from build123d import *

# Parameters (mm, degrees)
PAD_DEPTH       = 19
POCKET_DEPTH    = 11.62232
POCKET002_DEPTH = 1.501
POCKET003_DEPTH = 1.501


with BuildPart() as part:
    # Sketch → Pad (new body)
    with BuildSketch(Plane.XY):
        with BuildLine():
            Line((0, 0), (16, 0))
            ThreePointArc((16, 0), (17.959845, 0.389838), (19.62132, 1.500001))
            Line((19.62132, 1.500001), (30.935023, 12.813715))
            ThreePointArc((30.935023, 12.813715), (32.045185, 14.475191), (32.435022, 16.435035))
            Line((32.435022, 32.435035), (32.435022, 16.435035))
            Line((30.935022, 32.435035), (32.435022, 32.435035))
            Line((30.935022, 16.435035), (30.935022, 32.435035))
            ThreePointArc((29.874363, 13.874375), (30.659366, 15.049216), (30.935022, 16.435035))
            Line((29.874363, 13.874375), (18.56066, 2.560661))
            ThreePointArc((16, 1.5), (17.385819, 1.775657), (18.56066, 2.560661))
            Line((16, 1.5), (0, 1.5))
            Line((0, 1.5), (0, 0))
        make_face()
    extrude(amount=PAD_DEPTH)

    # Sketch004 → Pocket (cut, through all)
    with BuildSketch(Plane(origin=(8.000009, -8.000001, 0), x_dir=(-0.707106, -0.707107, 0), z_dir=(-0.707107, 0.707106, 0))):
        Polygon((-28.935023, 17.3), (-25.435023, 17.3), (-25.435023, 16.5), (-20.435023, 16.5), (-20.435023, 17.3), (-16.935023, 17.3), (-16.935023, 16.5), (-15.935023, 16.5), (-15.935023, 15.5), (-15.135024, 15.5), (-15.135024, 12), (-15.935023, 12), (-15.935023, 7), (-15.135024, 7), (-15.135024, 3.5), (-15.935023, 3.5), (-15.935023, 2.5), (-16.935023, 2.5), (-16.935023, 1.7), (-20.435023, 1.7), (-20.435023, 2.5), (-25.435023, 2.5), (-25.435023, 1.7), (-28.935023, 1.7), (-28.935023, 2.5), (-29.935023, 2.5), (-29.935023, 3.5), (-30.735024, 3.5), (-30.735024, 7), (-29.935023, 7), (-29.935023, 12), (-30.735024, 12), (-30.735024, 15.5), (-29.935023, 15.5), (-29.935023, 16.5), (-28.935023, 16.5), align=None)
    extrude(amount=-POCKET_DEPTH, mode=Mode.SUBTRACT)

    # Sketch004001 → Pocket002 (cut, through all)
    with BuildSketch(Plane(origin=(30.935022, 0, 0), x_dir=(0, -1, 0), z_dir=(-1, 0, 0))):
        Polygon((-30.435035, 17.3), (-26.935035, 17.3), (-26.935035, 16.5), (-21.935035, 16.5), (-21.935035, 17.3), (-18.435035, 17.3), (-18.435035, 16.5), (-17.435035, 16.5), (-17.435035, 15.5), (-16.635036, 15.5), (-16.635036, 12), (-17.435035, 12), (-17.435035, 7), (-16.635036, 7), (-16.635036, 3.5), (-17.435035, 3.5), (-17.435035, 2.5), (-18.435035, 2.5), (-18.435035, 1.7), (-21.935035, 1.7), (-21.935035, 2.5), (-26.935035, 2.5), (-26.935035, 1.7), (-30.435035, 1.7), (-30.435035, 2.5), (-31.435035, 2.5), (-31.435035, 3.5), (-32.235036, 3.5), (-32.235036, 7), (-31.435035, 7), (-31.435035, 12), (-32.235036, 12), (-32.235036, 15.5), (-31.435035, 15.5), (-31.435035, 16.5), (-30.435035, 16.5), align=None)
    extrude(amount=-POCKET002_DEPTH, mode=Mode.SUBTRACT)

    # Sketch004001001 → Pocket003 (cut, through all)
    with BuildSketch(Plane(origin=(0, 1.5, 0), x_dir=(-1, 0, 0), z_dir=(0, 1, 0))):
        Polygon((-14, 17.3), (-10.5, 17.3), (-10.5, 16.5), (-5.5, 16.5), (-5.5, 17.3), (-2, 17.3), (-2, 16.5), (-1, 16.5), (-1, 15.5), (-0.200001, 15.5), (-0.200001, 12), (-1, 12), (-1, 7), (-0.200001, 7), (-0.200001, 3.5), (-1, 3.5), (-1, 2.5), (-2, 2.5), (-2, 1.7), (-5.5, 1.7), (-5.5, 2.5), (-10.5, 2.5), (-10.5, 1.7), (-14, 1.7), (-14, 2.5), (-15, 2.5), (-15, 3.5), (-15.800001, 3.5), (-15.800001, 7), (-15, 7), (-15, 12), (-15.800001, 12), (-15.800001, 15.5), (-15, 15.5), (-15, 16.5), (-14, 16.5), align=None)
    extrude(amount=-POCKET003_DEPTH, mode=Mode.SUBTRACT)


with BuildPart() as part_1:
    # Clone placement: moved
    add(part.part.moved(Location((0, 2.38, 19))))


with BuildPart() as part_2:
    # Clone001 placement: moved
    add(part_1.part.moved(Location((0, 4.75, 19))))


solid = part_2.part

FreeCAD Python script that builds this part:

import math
import FreeCAD as App
import Part
import Sketcher

V = App.Vector


def add_polygon(sketch, points):
    """Adds a closed chain of lines whose ends are joined by coincident constraints."""
    first, n = sketch.GeometryCount, len(points)
    for a, b in zip(points, points[1:] + points[:1]):
        sketch.addGeometry(Part.LineSegment(App.Vector(*a, 0), App.Vector(*b, 0)), False)
    for i in range(n):
        sketch.addConstraint(Sketcher.Constraint("Coincident", first + i, 2, first + (i + 1) % n, 1))

doc = App.newDocument("Part")
body = doc.addObject("PartDesign::Body", "Body")

sketch1 = doc.addObject("Sketcher::SketchObject", "Sketch")
body.addObject(sketch1)
sketch1.AttachmentSupport = (doc.XY_Plane, [""])
sketch1.MapMode = "FlatFace"
sketch1.addGeometry([
    Part.LineSegment(V(0, 0, 0), V(16, 0, 0)),
    Part.ArcOfCircle(Part.Circle(V(16, 5.1, 0), V(0, 0, 1), 5.1), math.radians(-90), math.radians(-45)),
    Part.LineSegment(V(19.6, 1.5, 0), V(30.9, 12.8, 0)),
    Part.ArcOfCircle(Part.Circle(V(27.3, 16.4, 0), V(0, 0, 1), 5.1), math.radians(-45), math.radians(0)),
    Part.LineSegment(V(32.4, 16.4, 0), V(32.4, 32.4, 0)),
    Part.LineSegment(V(32.4, 32.4, 0), V(30.9, 32.4, 0)),
    Part.LineSegment(V(30.9, 32.4, 0), V(30.9, 16.4, 0)),
    Part.ArcOfCircle(Part.Circle(V(27.3, 16.4, 0), V(0, 0, 1), 3.6), math.radians(-45), math.radians(0)),
    Part.LineSegment(V(29.9, 13.9, 0), V(18.6, 2.6, 0)),
    Part.ArcOfCircle(Part.Circle(V(16, 5.1, 0), V(0, 0, 1), 3.6), math.radians(-90), math.radians(-45)),
    Part.LineSegment(V(16, 1.5, 0), V(0, 1.5, 0)),
    Part.LineSegment(V(0, 1.5, 0), V(0, 0, 0)),
], False)
sketch1.addConstraint([
    Sketcher.Constraint("Tangent", 0, 2, 1, 1),
    Sketcher.Constraint("Tangent", 1, 2, 2, 1),
    Sketcher.Constraint("Tangent", 2, 2, 3, 1),
    Sketcher.Constraint("Tangent", 3, 2, 4, 1),
    Sketcher.Constraint("Coincident", 4, 2, 5, 1),
    Sketcher.Constraint("Coincident", 5, 2, 6, 1),
    Sketcher.Constraint("Tangent", 6, 2, 7, 2),
    Sketcher.Constraint("Tangent", 7, 1, 8, 1),
    Sketcher.Constraint("Tangent", 8, 2, 9, 2),
    Sketcher.Constraint("Tangent", 9, 1, 10, 1),
    Sketcher.Constraint("Coincident", 10, 2, 11, 1),
    Sketcher.Constraint("Coincident", 11, 2, 0, 1),
    Sketcher.Constraint("Horizontal", 0),
    Sketcher.Constraint("Vertical", 4),
    Sketcher.Constraint("Horizontal", 5),
    Sketcher.Constraint("Vertical", 6),
    Sketcher.Constraint("Horizontal", 10),
    Sketcher.Constraint("Vertical", 11),
    Sketcher.Constraint("Coincident", 11, 2, -1, 1),
    Sketcher.Constraint("Coincident", 7, 3, 3, 3),
    Sketcher.Constraint("Coincident", 9, 3, 1, 3),
    Sketcher.Constraint("Equal", 7, 9),
    Sketcher.Constraint("Parallel", 2, 8),
    Sketcher.Constraint("Horizontal", 1, 2, 9, 1),
    Sketcher.Constraint("Vertical", 2, 2, 5, 2),
    Sketcher.Constraint("Equal", 10, 4),
    Sketcher.Constraint("DistanceX", 0, 1, 0, 2, 16.0),
    Sketcher.Constraint("Distance", 2, 16.0),
    Sketcher.Constraint("DistanceX", 5, 2, 5, 1, 1.5),
])
pad1 = doc.addObject("PartDesign::Pad", "Pad")
body.addObject(pad1)
pad1.Profile = sketch1
pad1.Length = 19

sketch2 = doc.addObject("Sketcher::SketchObject", "Sketch001")
body.addObject(sketch2)
sketch2.Placement = App.Placement(V(8.000009, -8.000001, 0), App.Rotation(V(-0.707106281, -0.707107281, 0), V(0, 0, 0.999999999), V(-0.707107281, 0.707106281, 0), "ZXY"))
add_polygon(sketch2, [(-25.4, 17.3), (-28.9, 17.3), (-28.9, 16.5), (-29.9, 16.5), (-29.9, 15.5), (-30.7, 15.5), (-30.7, 12), (-29.9, 12), (-29.9, 7), (-30.7, 7), (-30.7, 3.5), (-29.9, 3.5), (-29.9, 2.5), (-28.9, 2.5), (-28.9, 1.7), (-25.4, 1.7), (-25.4, 2.5), (-20.4, 2.5), (-20.4, 1.7), (-16.9, 1.7), (-16.9, 2.5), (-15.9, 2.5), (-15.9, 3.5), (-15.1, 3.5), (-15.1, 7), (-15.9, 7), (-15.9, 12), (-15.1, 12), (-15.1, 15.5), (-15.9, 15.5), (-15.9, 16.5), (-16.9, 16.5), (-16.9, 17.3), (-20.4, 17.3), (-20.4, 16.5), (-25.4, 16.5)])
sketch2.addConstraint([
    Sketcher.Constraint("Horizontal", 0),
    Sketcher.Constraint("Vertical", 1),
    Sketcher.Constraint("Horizontal", 2),
    Sketcher.Constraint("Vertical", 3),
    Sketcher.Constraint("Horizontal", 4),
    Sketcher.Constraint("Vertical", 5),
    Sketcher.Constraint("Horizontal", 6),
    Sketcher.Constraint("Vertical", 7),
    Sketcher.Constraint("Horizontal", 8),
    Sketcher.Constraint("Vertical", 9),
    Sketcher.Constraint("Horizontal", 10),
    Sketcher.Constraint("Vertical", 11),
    Sketcher.Constraint("Horizontal", 12),
    Sketcher.Constraint("Vertical", 13),
    Sketcher.Constraint("Horizontal", 14),
    Sketcher.Constraint("Vertical", 15),
    Sketcher.Constraint("Horizontal", 16),
    Sketcher.Constraint("Vertical", 17),
    Sketcher.Constraint("Horizontal", 18),
    Sketcher.Constraint("Vertical", 19),
    Sketcher.Constraint("Horizontal", 20),
    Sketcher.Constraint("Vertical", 21),
    Sketcher.Constraint("Horizontal", 22),
    Sketcher.Constraint("Vertical", 23),
    Sketcher.Constraint("Horizontal", 24),
    Sketcher.Constraint("Vertical", 25),
    Sketcher.Constraint("Horizontal", 26),
    Sketcher.Constraint("Vertical", 27),
    Sketcher.Constraint("Horizontal", 28),
    Sketcher.Constraint("Vertical", 29),
    Sketcher.Constraint("Horizontal", 30),
    Sketcher.Constraint("Vertical", 31),
    Sketcher.Constraint("Horizontal", 32),
    Sketcher.Constraint("Vertical", 33),
    Sketcher.Constraint("Horizontal", 34),
    Sketcher.Constraint("Vertical", 35),
    Sketcher.Constraint("Horizontal", 12, 2, 15, 2),
    Sketcher.Constraint("Horizontal", 14, 2, 17, 2),
    Sketcher.Constraint("Horizontal", 16, 2, 19, 2),
    Sketcher.Constraint("Horizontal", 10, 2, 21, 2),
    Sketcher.Constraint("Horizontal", 8, 2, 23, 2),
    Sketcher.Constraint("Horizontal", 6, 2, 25, 2),
    Sketcher.Constraint("Horizontal", 4, 2, 27, 2),
    Sketcher.Constraint("Horizontal", 2, 2, 29, 2),
    Sketcher.Constraint("Horizontal", 0, 2, 31, 2),
    Sketcher.Constraint("Horizontal", 30, 2, 33, 2),
    Sketcher.Constraint("Vertical", 3, 2, 6, 2),
    Sketcher.Constraint("Vertical", 5, 2, 8, 2),
    Sketcher.Constraint("Vertical", 7, 2, 10, 2),
    Sketcher.Constraint("Vertical", 1, 2, 12, 2),
    Sketcher.Constraint("Vertical", 21, 2, 24, 2),
    Sketcher.Constraint("Vertical", 23, 2, 26, 2),
    Sketcher.Constraint("Vertical", 25, 2, 28, 2),
    Sketcher.Constraint("Vertical", 19, 2, 30, 2),
    Sketcher.Constraint("Vertical", 17, 2, 32, 2),
    Sketcher.Constraint("Vertical", 15, 2, 34, 2),
    Sketcher.Constraint("Equal", 14, 18),
    Sketcher.Constraint("Equal", 12, 20),
    Sketcher.Constraint("Equal", 28, 1),
    Sketcher.Constraint("Equal", 30, 3),
    Sketcher.Constraint("Equal", 32, 5),
    Sketcher.Constraint("Equal", 34, 7),
    Sketcher.Constraint("Equal", 5, 9),
    Sketcher.Constraint("Equal", 3, 11),
    Sketcher.Constraint("Equal", 1, 13),
    Sketcher.Constraint("Equal", 10, 15),
    Sketcher.Constraint("DistanceX", 2, 2, 2, 1, 1.0),
    Sketcher.Constraint("DistanceX", 16, 1, 16, 2, 5.0),
    Sketcher.Constraint("DistanceX", 0, 2, 0, 1, 3.5),
    Sketcher.Constraint("DistanceX", 4, 2, 4, 1, 0.800001),
    Sketcher.Constraint("DistanceY", -1, 1, 5, 2, 12.0),
    Sketcher.Constraint("DistanceX", 0, 2, -1, 1, 28.935023),
])
pocket1 = doc.addObject("PartDesign::Pocket", "Pocket")
body.addObject(pocket1)
pocket1.Profile = sketch2
pocket1.Type = "ThroughAll"

sketch3 = doc.addObject("Sketcher::SketchObject", "Sketch002")
body.addObject(sketch3)
sketch3.AttachmentSupport = (doc.YZ_Plane, [""])
sketch3.MapMode = "FlatFace"
sketch3.AttachmentOffset = App.Placement(V(0, 0, 30.935022), App.Rotation())
add_polygon(sketch3, [(26.9, 17.3), (30.4, 17.3), (30.4, 16.5), (31.4, 16.5), (31.4, 15.5), (32.2, 15.5), (32.2, 12), (31.4, 12), (31.4, 7), (32.2, 7), (32.2, 3.5), (31.4, 3.5), (31.4, 2.5), (30.4, 2.5), (30.4, 1.7), (26.9, 1.7), (26.9, 2.5), (21.9, 2.5), (21.9, 1.7), (18.4, 1.7), (18.4, 2.5), (17.4, 2.5), (17.4, 3.5), (16.6, 3.5), (16.6, 7), (17.4, 7), (17.4, 12), (16.6, 12), (16.6, 15.5), (17.4, 15.5), (17.4, 16.5), (18.4, 16.5), (18.4, 17.3), (21.9, 17.3), (21.9, 16.5), (26.9, 16.5)])
sketch3.addConstraint([
    Sketcher.Constraint("Horizontal", 0),
    Sketcher.Constraint("Vertical", 1),
    Sketcher.Constraint("Horizontal", 2),
    Sketcher.Constraint("Vertical", 3),
    Sketcher.Constraint("Horizontal", 4),
    Sketcher.Constraint("Vertical", 5),
    Sketcher.Constraint("Horizontal", 6),
    Sketcher.Constraint("Vertical", 7),
    Sketcher.Constraint("Horizontal", 8),
    Sketcher.Constraint("Vertical", 9),
    Sketcher.Constraint("Horizontal", 10),
    Sketcher.Constraint("Vertical", 11),
    Sketcher.Constraint("Horizontal", 12),
    Sketcher.Constraint("Vertical", 13),
    Sketcher.Constraint("Horizontal", 14),
    Sketcher.Constraint("Vertical", 15),
    Sketcher.Constraint("Horizontal", 16),
    Sketcher.Constraint("Vertical", 17),
    Sketcher.Constraint("Horizontal", 18),
    Sketcher.Constraint("Vertical", 19),
    Sketcher.Constraint("Horizontal", 20),
    Sketcher.Constraint("Vertical", 21),
    Sketcher.Constraint("Horizontal", 22),
    Sketcher.Constraint("Vertical", 23),
    Sketcher.Constraint("Horizontal", 24),
    Sketcher.Constraint("Vertical", 25),
    Sketcher.Constraint("Horizontal", 26),
    Sketcher.Constraint("Vertical", 27),
    Sketcher.Constraint("Horizontal", 28),
    Sketcher.Constraint("Vertical", 29),
    Sketcher.Constraint("Horizontal", 30),
    Sketcher.Constraint("Vertical", 31),
    Sketcher.Constraint("Horizontal", 32),
    Sketcher.Constraint("Vertical", 33),
    Sketcher.Constraint("Horizontal", 34),
    Sketcher.Constraint("Vertical", 35),
    Sketcher.Constraint("Horizontal", 12, 2, 15, 2),
    Sketcher.Constraint("Horizontal", 14, 2, 17, 2),
    Sketcher.Constraint("Horizontal", 16, 2, 19, 2),
    Sketcher.Constraint("Horizontal", 10, 2, 21, 2),
    Sketcher.Constraint("Horizontal", 8, 2, 23, 2),
    Sketcher.Constraint("Horizontal", 6, 2, 25, 2),
    Sketcher.Constraint("Horizontal", 4, 2, 27, 2),
    Sketcher.Constraint("Horizontal", 2, 2, 29, 2),
    Sketcher.Constraint("Horizontal", 0, 2, 31, 2),
    Sketcher.Constraint("Horizontal", 30, 2, 33, 2),
    Sketcher.Constraint("Vertical", 3, 2, 6, 2),
    Sketcher.Constraint("Vertical", 5, 2, 8, 2),
    Sketcher.Constraint("Vertical", 7, 2, 10, 2),
    Sketcher.Constraint("Vertical", 1, 2, 12, 2),
    Sketcher.Constraint("Vertical", 21, 2, 24, 2),
    Sketcher.Constraint("Vertical", 23, 2, 26, 2),
    Sketcher.Constraint("Vertical", 25, 2, 28, 2),
    Sketcher.Constraint("Vertical", 19, 2, 30, 2),
    Sketcher.Constraint("Vertical", 17, 2, 32, 2),
    Sketcher.Constraint("Vertical", 15, 2, 34, 2),
    Sketcher.Constraint("Equal", 14, 18),
    Sketcher.Constraint("Equal", 12, 20),
    Sketcher.Constraint("Equal", 28, 1),
    Sketcher.Constraint("Equal", 30, 3),
    Sketcher.Constraint("Equal", 32, 5),
    Sketcher.Constraint("Equal", 34, 7),
    Sketcher.Constraint("Equal", 5, 9),
    Sketcher.Constraint("Equal", 3, 11),
    Sketcher.Constraint("Equal", 1, 13),
    Sketcher.Constraint("Equal", 10, 15),
    Sketcher.Constraint("DistanceX", 2, 1, 2, 2, 1.0),
    Sketcher.Constraint("DistanceX", 16, 2, 16, 1, 5.0),
    Sketcher.Constraint("DistanceX", 0, 1, 0, 2, 3.5),
    Sketcher.Constraint("DistanceX", 4, 1, 4, 2, 0.800001),
    Sketcher.Constraint("DistanceY", -1, 1, 5, 2, 12.0),
    Sketcher.Constraint("DistanceX", -1, 1, 0, 2, 30.435035),
])
pocket2 = doc.addObject("PartDesign::Pocket", "Pocket001")
body.addObject(pocket2)
pocket2.Profile = sketch3
pocket2.Type = "ThroughAll"
pocket2.Reversed = True

sketch4 = doc.addObject("Sketcher::SketchObject", "Sketch003")
body.addObject(sketch4)
sketch4.AttachmentSupport = (doc.XZ_Plane, [""])
sketch4.MapMode = "FlatFace"
sketch4.AttachmentOffset = App.Placement(V(0, 0, -1.5), App.Rotation())
add_polygon(sketch4, [(10.5, 17.3), (14, 17.3), (14, 16.5), (15, 16.5), (15, 15.5), (15.8, 15.5), (15.8, 12), (15, 12), (15, 7), (15.8, 7), (15.8, 3.5), (15, 3.5), (15, 2.5), (14, 2.5), (14, 1.7), (10.5, 1.7), (10.5, 2.5), (5.5, 2.5), (5.5, 1.7), (2, 1.7), (2, 2.5), (1, 2.5), (1, 3.5), (0.2, 3.5), (0.2, 7), (1, 7), (1, 12), (0.2, 12), (0.2, 15.5), (1, 15.5), (1, 16.5), (2, 16.5), (2, 17.3), (5.5, 17.3), (5.5, 16.5), (10.5, 16.5)])
sketch4.addConstraint([
    Sketcher.Constraint("Horizontal", 0),
    Sketcher.Constraint("Vertical", 1),
    Sketcher.Constraint("Horizontal", 2),
    Sketcher.Constraint("Vertical", 3),
    Sketcher.Constraint("Horizontal", 4),
    Sketcher.Constraint("Vertical", 5),
    Sketcher.Constraint("Horizontal", 6),
    Sketcher.Constraint("Vertical", 7),
    Sketcher.Constraint("Horizontal", 8),
    Sketcher.Constraint("Vertical", 9),
    Sketcher.Constraint("Horizontal", 10),
    Sketcher.Constraint("Vertical", 11),
    Sketcher.Constraint("Horizontal", 12),
    Sketcher.Constraint("Vertical", 13),
    Sketcher.Constraint("Horizontal", 14),
    Sketcher.Constraint("Vertical", 15),
    Sketcher.Constraint("Horizontal", 16),
    Sketcher.Constraint("Vertical", 17),
    Sketcher.Constraint("Horizontal", 18),
    Sketcher.Constraint("Vertical", 19),
    Sketcher.Constraint("Horizontal", 20),
    Sketcher.Constraint("Vertical", 21),
    Sketcher.Constraint("Horizontal", 22),
    Sketcher.Constraint("Vertical", 23),
    Sketcher.Constraint("Horizontal", 24),
    Sketcher.Constraint("Vertical", 25),
    Sketcher.Constraint("Horizontal", 26),
    Sketcher.Constraint("Vertical", 27),
    Sketcher.Constraint("Horizontal", 28),
    Sketcher.Constraint("Vertical", 29),
    Sketcher.Constraint("Horizontal", 30),
    Sketcher.Constraint("Vertical", 31),
    Sketcher.Constraint("Horizontal", 32),
    Sketcher.Constraint("Vertical", 33),
    Sketcher.Constraint("Horizontal", 34),
    Sketcher.Constraint("Vertical", 35),
    Sketcher.Constraint("Horizontal", 12, 2, 15, 2),
    Sketcher.Constraint("Horizontal", 14, 2, 17, 2),
    Sketcher.Constraint("Horizontal", 16, 2, 19, 2),
    Sketcher.Constraint("Horizontal", 10, 2, 21, 2),
    Sketcher.Constraint("Horizontal", 8, 2, 23, 2),
    Sketcher.Constraint("Horizontal", 6, 2, 25, 2),
    Sketcher.Constraint("Horizontal", 4, 2, 27, 2),
    Sketcher.Constraint("Horizontal", 2, 2, 29, 2),
    Sketcher.Constraint("Horizontal", 0, 2, 31, 2),
    Sketcher.Constraint("Horizontal", 30, 2, 33, 2),
    Sketcher.Constraint("Vertical", 3, 2, 6, 2),
    Sketcher.Constraint("Vertical", 5, 2, 8, 2),
    Sketcher.Constraint("Vertical", 7, 2, 10, 2),
    Sketcher.Constraint("Vertical", 1, 2, 12, 2),
    Sketcher.Constraint("Vertical", 21, 2, 24, 2),
    Sketcher.Constraint("Vertical", 23, 2, 26, 2),
    Sketcher.Constraint("Vertical", 25, 2, 28, 2),
    Sketcher.Constraint("Vertical", 19, 2, 30, 2),
    Sketcher.Constraint("Vertical", 17, 2, 32, 2),
    Sketcher.Constraint("Vertical", 15, 2, 34, 2),
    Sketcher.Constraint("Equal", 14, 18),
    Sketcher.Constraint("Equal", 12, 20),
    Sketcher.Constraint("Equal", 10, 22),
    Sketcher.Constraint("Equal", 28, 1),
    Sketcher.Constraint("Equal", 30, 3),
    Sketcher.Constraint("Equal", 32, 5),
    Sketcher.Constraint("Equal", 34, 7),
    Sketcher.Constraint("Equal", 5, 9),
    Sketcher.Constraint("Equal", 3, 11),
    Sketcher.Constraint("Equal", 1, 13),
    Sketcher.Constraint("DistanceX", 2, 1, 2, 2, 1.0),
    Sketcher.Constraint("DistanceX", 16, 2, 16, 1, 5.0),
    Sketcher.Constraint("DistanceX", 0, 1, 0, 2, 3.5),
    Sketcher.Constraint("DistanceX", 4, 1, 4, 2, 0.800001),
    Sketcher.Constraint("DistanceX", -1, 1, 0, 2, 14.0),
    Sketcher.Constraint("DistanceY", -1, 1, 5, 2, 12.0),
])
pocket3 = doc.addObject("PartDesign::Pocket", "Pocket002")
body.addObject(pocket3)
pocket3.Profile = sketch4
pocket3.Type = "ThroughAll"
pocket3.Reversed = True
body2 = doc.addObject("PartDesign::Body", "Body001")
doc.recompute()

body.Placement = App.Placement(V(0, 2.38, 19), App.Rotation(V(0, 0, 1), 0))
boolean = doc.addObject("PartDesign::Boolean", "Boolean")
body2.addObject(boolean)
boolean.Type = "Fuse"
boolean.addObjects([body])
body3 = doc.addObject("PartDesign::Body", "Body002")
doc.recompute()

body2.Placement = App.Placement(V(0, 4.75, 19), App.Rotation(V(0, 0, 1), 0))
boolean2 = doc.addObject("PartDesign::Boolean", "Boolean001")
body3.addObject(boolean2)
boolean2.Type = "Fuse"
boolean2.addObjects([body2])

doc.recompute()
